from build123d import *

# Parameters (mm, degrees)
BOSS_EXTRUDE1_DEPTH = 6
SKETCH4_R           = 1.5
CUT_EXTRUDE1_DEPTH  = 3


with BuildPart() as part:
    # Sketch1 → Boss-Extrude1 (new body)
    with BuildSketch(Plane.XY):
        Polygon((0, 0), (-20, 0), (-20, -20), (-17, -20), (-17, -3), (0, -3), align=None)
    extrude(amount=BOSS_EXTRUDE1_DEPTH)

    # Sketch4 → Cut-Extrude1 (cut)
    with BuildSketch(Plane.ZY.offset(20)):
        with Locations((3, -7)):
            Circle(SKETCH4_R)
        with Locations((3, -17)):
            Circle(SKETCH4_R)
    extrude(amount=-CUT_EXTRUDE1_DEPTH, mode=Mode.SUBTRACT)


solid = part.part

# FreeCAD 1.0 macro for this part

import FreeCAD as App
import Part
import Sketcher

V = App.Vector


def add_polygon(sketch, points):
    """Adds a closed chain of lines whose ends are joined by coincident constraints."""
    first, n = sketch.GeometryCount, len(points)
    for a, b in zip(points, points[1:] + points[:1]):
        sketch.addGeometry(Part.LineSegment(App.Vector(*a, 0), App.Vector(*b, 0)), False)
    for i in range(n):
        sketch.addConstraint(Sketcher.Constraint("Coincident", first + i, 2, first + (i + 1) % n, 1))

doc = App.newDocument("Part")
params = doc.addObject("Spreadsheet::Sheet", "Params")
for row, (alias, value) in enumerate([
    ("sketch1_width", "20 mm"),
    ("sketch1_width2", "3 mm"),
    ("pad1_length", "6 mm"),
    ("sketch2_diameter", "3 mm"),
    ("pocket1_length", "3 mm"),
], start=1):
    params.set(f"A{row}", alias)
    params.set(f"B{row}", "=" + value)
    params.setAlias(f"B{row}", alias)

body = doc.addObject("PartDesign::Body", "Body")

sketch1 = doc.addObject("Sketcher::SketchObject", "Sketch")
body.addObject(sketch1)
sketch1.AttachmentSupport = (doc.XY_Plane, [""])
sketch1.MapMode = "FlatFace"
add_polygon(sketch1, [(0, 0), (-20, 0), (-20, -20), (-17, -20), (-17, -3), (0, -3)])
sketch1.addConstraint(Sketcher.Constraint("Horizontal", 0))
sketch1.addConstraint(Sketcher.Constraint("Vertical", 1))
sketch1.addConstraint(Sketcher.Constraint("Horizontal", 2))
sketch1.addConstraint(Sketcher.Constraint("Vertical", 3))
sketch1.addConstraint(Sketcher.Constraint("Horizontal", 4))
sketch1.addConstraint(Sketcher.Constraint("Vertical", 5))
sketch1.addConstraint(Sketcher.Constraint("Coincident", 5, 2, -1, 1))
sketch1.addConstraint(Sketcher.Constraint("Equal", 0, 1))
sketch1.addConstraint(Sketcher.Constraint("Equal", 4, 3))
sketch1.addConstraint(Sketcher.Constraint("DistanceX", 0, 2, 0, 1, 20.0))
sketch1.addConstraint(Sketcher.Constraint("DistanceX", 2, 1, 2, 2, 3.0))
sketch1.setExpression("Constraints[15]", "Params.sketch1_width")
sketch1.setExpression("Constraints[16]", "Params.sketch1_width2")
pad1 = doc.addObject("PartDesign::Pad", "Pad")
body.addObject(pad1)
pad1.Profile = sketch1
pad1.setExpression("Length", "Params.pad1_length")

sketch2 = doc.addObject("Sketcher::SketchObject", "Sketch001")
body.addObject(sketch2)
sketch2.AttachmentSupport = (doc.YZ_Plane, [""])
sketch2.MapMode = "FlatFace"
sketch2.AttachmentOffset = App.Placement(V(0, 0, -20), App.Rotation())
sketch2.addGeometry(Part.Circle(V(-7, 3, 0), V(0, 0, 1), 1.5), False)
sketch2.addGeometry(Part.Circle(V(-17, 3, 0), V(0, 0, 1), 1.5), False)
sketch2.addConstraint(Sketcher.Constraint("Equal", 0, 1))
sketch2.addConstraint(Sketcher.Constraint("Horizontal", 0, 3, 1, 3))
sketch2.addConstraint(Sketcher.Constraint("Diameter", 0, 3.0))
sketch2.addConstraint(Sketcher.Constraint("DistanceX", 0, 3, -1, 1, 7.0))
sketch2.addConstraint(Sketcher.Constraint("DistanceY", -1, 1, 0, 3, 3.0))
sketch2.addConstraint(Sketcher.Constraint("DistanceX", 1, 3, -1, 1, 17.0))
sketch2.setExpression("Constraints[2]", "Params.sketch2_diameter")
pocket1 = doc.addObject("PartDesign::Pocket", "Pocket")
body.addObject(pocket1)
pocket1.Profile = sketch2
pocket1.setExpression("Length", "Params.pocket1_length")
pocket1.Reversed = True

doc.recompute()
